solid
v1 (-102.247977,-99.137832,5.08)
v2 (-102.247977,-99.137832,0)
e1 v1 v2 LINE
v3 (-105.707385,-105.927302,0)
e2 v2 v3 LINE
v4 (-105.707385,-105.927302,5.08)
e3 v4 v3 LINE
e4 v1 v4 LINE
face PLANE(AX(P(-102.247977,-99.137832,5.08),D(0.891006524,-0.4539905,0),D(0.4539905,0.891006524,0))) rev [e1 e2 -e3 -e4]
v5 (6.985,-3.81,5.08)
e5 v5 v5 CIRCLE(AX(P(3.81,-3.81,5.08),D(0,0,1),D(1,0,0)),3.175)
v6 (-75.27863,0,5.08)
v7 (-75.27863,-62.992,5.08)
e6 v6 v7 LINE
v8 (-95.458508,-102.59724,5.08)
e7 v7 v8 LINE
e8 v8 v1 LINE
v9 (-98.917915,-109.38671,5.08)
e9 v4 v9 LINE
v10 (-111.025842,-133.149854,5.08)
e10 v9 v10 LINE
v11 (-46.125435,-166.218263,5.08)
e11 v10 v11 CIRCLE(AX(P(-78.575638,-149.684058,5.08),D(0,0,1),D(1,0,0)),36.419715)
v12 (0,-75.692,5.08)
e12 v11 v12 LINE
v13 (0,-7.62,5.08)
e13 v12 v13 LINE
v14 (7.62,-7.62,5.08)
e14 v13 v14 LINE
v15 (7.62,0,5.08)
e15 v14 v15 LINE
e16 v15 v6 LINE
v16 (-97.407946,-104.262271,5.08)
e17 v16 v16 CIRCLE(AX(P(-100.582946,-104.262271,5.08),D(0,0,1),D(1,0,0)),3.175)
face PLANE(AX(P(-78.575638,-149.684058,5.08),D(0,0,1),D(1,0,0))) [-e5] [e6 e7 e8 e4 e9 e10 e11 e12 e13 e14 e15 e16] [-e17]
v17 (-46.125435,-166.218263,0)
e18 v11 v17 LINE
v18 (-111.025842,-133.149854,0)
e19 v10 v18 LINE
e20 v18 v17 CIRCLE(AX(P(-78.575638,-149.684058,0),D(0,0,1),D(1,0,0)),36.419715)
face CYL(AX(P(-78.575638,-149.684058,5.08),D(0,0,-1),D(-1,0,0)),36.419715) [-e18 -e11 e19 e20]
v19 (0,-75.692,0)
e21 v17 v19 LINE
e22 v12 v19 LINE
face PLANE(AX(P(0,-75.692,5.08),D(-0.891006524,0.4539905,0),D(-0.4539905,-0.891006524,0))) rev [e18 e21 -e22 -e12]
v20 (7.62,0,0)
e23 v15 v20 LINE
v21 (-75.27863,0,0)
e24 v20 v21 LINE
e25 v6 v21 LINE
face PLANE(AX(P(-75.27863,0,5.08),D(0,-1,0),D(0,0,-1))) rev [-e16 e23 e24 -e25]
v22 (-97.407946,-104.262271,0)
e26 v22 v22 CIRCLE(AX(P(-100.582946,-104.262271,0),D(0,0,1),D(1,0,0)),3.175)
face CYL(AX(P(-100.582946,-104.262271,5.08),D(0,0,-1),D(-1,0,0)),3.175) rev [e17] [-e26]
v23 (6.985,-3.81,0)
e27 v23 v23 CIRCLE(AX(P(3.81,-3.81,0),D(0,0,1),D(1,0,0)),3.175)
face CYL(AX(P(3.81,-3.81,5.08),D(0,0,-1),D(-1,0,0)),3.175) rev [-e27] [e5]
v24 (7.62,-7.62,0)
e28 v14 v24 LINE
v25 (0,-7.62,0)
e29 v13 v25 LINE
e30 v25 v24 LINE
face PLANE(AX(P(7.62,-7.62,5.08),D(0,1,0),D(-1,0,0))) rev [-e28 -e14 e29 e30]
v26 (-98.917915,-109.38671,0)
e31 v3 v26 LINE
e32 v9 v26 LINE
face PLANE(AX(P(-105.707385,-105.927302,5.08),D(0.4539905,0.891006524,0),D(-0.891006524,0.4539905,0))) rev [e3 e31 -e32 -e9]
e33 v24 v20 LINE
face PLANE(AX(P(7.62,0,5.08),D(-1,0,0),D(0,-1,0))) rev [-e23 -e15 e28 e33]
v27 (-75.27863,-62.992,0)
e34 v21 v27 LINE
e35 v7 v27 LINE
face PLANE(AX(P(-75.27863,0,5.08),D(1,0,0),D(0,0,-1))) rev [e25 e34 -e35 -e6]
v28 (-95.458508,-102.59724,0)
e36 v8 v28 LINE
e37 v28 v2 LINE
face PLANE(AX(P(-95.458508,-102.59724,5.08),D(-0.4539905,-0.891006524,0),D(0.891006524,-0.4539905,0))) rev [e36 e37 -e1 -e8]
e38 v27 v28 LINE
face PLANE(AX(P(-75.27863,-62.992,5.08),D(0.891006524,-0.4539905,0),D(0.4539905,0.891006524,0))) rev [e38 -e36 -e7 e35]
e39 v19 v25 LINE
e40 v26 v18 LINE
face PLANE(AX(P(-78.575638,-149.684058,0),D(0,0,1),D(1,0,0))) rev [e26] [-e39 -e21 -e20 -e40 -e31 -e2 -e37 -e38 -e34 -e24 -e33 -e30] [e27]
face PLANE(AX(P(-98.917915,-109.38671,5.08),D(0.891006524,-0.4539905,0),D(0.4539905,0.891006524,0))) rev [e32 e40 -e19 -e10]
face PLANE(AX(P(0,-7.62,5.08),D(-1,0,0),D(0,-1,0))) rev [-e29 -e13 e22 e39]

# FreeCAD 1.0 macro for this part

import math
import FreeCAD as App
import Part
import Sketcher

V = App.Vector
Q = App.Units.Quantity

doc = App.newDocument("Part")
body = doc.addObject("PartDesign::Body", "Body")

# Sketch on XY plane
sketch1 = body.newObject("Sketcher::SketchObject", "Sketch")
sketch1.AttachmentSupport = (doc.getObject("XY_Plane"), [""])
sketch1.MapMode = "FlatFace"
sketch1.addGeometry([
    Part.LineSegment(V(-95.5, -102.6, 0), V(-102.2, -99.1, 0)),  # 0
    Part.LineSegment(V(-102.2, -99.1, 0), V(-105.7, -105.9, 0)),  # 1
    Part.LineSegment(V(-105.7, -105.9, 0), V(-98.9, -109.4, 0)),  # 2
    Part.LineSegment(V(-98.9, -109.4, 0), V(-111, -133.1, 0)),  # 3
    Part.ArcOfCircle(Part.Circle(V(-78.6, -149.7, 0), V(0, 0, 1), 36.4), math.radians(153), math.radians(333)),  # 4
    Part.LineSegment(V(-46.1, -166.2, 0), V(0, -75.7, 0)),  # 5
    Part.LineSegment(V(0, -75.7, 0), V(0, -7.6, 0)),  # 6
    Part.LineSegment(V(0, -7.6, 0), V(7.6, -7.6, 0)),  # 7
    Part.LineSegment(V(7.6, -7.6, 0), V(7.6, 0, 0)),  # 8
    Part.LineSegment(V(7.6, 0, 0), V(-75.3, 0, 0)),  # 9
    Part.LineSegment(V(-75.3, 0, 0), V(-75.3, -63, 0)),  # 10
    Part.LineSegment(V(-75.3, -63, 0), V(-95.5, -102.6, 0)),  # 11
    Part.Circle(V(-100.6, -104.3, 0), V(0, 0, 1), 3.2),  # 12
    Part.Circle(V(3.8, -3.8, 0), V(0, 0, 1), 3.2),  # 13
], False)
sketch1.addConstraint([
    Sketcher.Constraint("Coincident", 0, 2, 1, 1),
    Sketcher.Constraint("Coincident", 1, 2, 2, 1),
    Sketcher.Constraint("Coincident", 2, 2, 3, 1),
    Sketcher.Constraint("Tangent", 3, 2, 4, 1),
    Sketcher.Constraint("Tangent", 4, 2, 5, 1),
    Sketcher.Constraint("Coincident", 5, 2, 6, 1),
    Sketcher.Constraint("Coincident", 6, 2, 7, 1),
    Sketcher.Constraint("Coincident", 7, 2, 8, 1),
    Sketcher.Constraint("Coincident", 8, 2, 9, 1),
    Sketcher.Constraint("Coincident", 9, 2, 10, 1),
    Sketcher.Constraint("Coincident", 10, 2, 11, 1),
    Sketcher.Constraint("Coincident", 11, 2, 0, 1),
    Sketcher.Constraint("Vertical", 6),
    Sketcher.Constraint("Horizontal", 7),
    Sketcher.Constraint("Vertical", 8),
    Sketcher.Constraint("Horizontal", 9),
    Sketcher.Constraint("Vertical", 10),
    Sketcher.Constraint("Equal", 12, 13),
    Sketcher.Constraint("PointOnObject", 5, 2, -2),
    Sketcher.Constraint("PointOnObject", 8, 2, -1),
    Sketcher.Constraint("Perpendicular", 0, 1),
    Sketcher.Constraint("Perpendicular", 1, 2),
    Sketcher.Constraint("Perpendicular", 2, 3),
    Sketcher.Constraint("Parallel", 3, 5),
    Sketcher.Constraint("Parallel", 5, 11),
    Sketcher.Constraint("Equal", 7, 8),
    Sketcher.Constraint("Equal", 0, 1),
    Sketcher.Constraint("Equal", 1, 2),
    Sketcher.Constraint("Diameter", 12, Q("0.25 in")),
    Sketcher.Constraint("Distance", 5, Q("4 in")),
    Sketcher.Constraint("DistanceX", 7, 1, 7, 2, Q("0.3 in")),
    Sketcher.Constraint("Angle", 0, Q("153 deg")),
    Sketcher.Constraint("Distance", 0, Q("0.3 in")),
    Sketcher.Constraint("DistanceY", 6, 1, 6, 2, Q("2.68 in")),
    Sketcher.Constraint("DistanceY", 10, 2, 10, 1, Q("2.48 in")),
    Sketcher.Constraint("Distance", 3, Q("1.05 in")),
    Sketcher.Constraint("Distance", 11, Q("1.75 in")),
    Sketcher.Constraint("DistanceX", -1, 1, 13, 3, Q("0.15 in")),
    Sketcher.Constraint("DistanceY", 13, 3, -1, 1, Q("0.15 in")),
    Sketcher.Constraint("DistanceY", 12, 3, -1, 1, Q("104.262271 mm")),
    Sketcher.Constraint("DistanceX", 12, 3, 4, 3, Q("22.007308 mm")),
])
pad1 = body.newObject("PartDesign::Pad", "Pad")
pad1.Profile = sketch1
pad1.Length = Q("0.2 in")

doc.recompute()
